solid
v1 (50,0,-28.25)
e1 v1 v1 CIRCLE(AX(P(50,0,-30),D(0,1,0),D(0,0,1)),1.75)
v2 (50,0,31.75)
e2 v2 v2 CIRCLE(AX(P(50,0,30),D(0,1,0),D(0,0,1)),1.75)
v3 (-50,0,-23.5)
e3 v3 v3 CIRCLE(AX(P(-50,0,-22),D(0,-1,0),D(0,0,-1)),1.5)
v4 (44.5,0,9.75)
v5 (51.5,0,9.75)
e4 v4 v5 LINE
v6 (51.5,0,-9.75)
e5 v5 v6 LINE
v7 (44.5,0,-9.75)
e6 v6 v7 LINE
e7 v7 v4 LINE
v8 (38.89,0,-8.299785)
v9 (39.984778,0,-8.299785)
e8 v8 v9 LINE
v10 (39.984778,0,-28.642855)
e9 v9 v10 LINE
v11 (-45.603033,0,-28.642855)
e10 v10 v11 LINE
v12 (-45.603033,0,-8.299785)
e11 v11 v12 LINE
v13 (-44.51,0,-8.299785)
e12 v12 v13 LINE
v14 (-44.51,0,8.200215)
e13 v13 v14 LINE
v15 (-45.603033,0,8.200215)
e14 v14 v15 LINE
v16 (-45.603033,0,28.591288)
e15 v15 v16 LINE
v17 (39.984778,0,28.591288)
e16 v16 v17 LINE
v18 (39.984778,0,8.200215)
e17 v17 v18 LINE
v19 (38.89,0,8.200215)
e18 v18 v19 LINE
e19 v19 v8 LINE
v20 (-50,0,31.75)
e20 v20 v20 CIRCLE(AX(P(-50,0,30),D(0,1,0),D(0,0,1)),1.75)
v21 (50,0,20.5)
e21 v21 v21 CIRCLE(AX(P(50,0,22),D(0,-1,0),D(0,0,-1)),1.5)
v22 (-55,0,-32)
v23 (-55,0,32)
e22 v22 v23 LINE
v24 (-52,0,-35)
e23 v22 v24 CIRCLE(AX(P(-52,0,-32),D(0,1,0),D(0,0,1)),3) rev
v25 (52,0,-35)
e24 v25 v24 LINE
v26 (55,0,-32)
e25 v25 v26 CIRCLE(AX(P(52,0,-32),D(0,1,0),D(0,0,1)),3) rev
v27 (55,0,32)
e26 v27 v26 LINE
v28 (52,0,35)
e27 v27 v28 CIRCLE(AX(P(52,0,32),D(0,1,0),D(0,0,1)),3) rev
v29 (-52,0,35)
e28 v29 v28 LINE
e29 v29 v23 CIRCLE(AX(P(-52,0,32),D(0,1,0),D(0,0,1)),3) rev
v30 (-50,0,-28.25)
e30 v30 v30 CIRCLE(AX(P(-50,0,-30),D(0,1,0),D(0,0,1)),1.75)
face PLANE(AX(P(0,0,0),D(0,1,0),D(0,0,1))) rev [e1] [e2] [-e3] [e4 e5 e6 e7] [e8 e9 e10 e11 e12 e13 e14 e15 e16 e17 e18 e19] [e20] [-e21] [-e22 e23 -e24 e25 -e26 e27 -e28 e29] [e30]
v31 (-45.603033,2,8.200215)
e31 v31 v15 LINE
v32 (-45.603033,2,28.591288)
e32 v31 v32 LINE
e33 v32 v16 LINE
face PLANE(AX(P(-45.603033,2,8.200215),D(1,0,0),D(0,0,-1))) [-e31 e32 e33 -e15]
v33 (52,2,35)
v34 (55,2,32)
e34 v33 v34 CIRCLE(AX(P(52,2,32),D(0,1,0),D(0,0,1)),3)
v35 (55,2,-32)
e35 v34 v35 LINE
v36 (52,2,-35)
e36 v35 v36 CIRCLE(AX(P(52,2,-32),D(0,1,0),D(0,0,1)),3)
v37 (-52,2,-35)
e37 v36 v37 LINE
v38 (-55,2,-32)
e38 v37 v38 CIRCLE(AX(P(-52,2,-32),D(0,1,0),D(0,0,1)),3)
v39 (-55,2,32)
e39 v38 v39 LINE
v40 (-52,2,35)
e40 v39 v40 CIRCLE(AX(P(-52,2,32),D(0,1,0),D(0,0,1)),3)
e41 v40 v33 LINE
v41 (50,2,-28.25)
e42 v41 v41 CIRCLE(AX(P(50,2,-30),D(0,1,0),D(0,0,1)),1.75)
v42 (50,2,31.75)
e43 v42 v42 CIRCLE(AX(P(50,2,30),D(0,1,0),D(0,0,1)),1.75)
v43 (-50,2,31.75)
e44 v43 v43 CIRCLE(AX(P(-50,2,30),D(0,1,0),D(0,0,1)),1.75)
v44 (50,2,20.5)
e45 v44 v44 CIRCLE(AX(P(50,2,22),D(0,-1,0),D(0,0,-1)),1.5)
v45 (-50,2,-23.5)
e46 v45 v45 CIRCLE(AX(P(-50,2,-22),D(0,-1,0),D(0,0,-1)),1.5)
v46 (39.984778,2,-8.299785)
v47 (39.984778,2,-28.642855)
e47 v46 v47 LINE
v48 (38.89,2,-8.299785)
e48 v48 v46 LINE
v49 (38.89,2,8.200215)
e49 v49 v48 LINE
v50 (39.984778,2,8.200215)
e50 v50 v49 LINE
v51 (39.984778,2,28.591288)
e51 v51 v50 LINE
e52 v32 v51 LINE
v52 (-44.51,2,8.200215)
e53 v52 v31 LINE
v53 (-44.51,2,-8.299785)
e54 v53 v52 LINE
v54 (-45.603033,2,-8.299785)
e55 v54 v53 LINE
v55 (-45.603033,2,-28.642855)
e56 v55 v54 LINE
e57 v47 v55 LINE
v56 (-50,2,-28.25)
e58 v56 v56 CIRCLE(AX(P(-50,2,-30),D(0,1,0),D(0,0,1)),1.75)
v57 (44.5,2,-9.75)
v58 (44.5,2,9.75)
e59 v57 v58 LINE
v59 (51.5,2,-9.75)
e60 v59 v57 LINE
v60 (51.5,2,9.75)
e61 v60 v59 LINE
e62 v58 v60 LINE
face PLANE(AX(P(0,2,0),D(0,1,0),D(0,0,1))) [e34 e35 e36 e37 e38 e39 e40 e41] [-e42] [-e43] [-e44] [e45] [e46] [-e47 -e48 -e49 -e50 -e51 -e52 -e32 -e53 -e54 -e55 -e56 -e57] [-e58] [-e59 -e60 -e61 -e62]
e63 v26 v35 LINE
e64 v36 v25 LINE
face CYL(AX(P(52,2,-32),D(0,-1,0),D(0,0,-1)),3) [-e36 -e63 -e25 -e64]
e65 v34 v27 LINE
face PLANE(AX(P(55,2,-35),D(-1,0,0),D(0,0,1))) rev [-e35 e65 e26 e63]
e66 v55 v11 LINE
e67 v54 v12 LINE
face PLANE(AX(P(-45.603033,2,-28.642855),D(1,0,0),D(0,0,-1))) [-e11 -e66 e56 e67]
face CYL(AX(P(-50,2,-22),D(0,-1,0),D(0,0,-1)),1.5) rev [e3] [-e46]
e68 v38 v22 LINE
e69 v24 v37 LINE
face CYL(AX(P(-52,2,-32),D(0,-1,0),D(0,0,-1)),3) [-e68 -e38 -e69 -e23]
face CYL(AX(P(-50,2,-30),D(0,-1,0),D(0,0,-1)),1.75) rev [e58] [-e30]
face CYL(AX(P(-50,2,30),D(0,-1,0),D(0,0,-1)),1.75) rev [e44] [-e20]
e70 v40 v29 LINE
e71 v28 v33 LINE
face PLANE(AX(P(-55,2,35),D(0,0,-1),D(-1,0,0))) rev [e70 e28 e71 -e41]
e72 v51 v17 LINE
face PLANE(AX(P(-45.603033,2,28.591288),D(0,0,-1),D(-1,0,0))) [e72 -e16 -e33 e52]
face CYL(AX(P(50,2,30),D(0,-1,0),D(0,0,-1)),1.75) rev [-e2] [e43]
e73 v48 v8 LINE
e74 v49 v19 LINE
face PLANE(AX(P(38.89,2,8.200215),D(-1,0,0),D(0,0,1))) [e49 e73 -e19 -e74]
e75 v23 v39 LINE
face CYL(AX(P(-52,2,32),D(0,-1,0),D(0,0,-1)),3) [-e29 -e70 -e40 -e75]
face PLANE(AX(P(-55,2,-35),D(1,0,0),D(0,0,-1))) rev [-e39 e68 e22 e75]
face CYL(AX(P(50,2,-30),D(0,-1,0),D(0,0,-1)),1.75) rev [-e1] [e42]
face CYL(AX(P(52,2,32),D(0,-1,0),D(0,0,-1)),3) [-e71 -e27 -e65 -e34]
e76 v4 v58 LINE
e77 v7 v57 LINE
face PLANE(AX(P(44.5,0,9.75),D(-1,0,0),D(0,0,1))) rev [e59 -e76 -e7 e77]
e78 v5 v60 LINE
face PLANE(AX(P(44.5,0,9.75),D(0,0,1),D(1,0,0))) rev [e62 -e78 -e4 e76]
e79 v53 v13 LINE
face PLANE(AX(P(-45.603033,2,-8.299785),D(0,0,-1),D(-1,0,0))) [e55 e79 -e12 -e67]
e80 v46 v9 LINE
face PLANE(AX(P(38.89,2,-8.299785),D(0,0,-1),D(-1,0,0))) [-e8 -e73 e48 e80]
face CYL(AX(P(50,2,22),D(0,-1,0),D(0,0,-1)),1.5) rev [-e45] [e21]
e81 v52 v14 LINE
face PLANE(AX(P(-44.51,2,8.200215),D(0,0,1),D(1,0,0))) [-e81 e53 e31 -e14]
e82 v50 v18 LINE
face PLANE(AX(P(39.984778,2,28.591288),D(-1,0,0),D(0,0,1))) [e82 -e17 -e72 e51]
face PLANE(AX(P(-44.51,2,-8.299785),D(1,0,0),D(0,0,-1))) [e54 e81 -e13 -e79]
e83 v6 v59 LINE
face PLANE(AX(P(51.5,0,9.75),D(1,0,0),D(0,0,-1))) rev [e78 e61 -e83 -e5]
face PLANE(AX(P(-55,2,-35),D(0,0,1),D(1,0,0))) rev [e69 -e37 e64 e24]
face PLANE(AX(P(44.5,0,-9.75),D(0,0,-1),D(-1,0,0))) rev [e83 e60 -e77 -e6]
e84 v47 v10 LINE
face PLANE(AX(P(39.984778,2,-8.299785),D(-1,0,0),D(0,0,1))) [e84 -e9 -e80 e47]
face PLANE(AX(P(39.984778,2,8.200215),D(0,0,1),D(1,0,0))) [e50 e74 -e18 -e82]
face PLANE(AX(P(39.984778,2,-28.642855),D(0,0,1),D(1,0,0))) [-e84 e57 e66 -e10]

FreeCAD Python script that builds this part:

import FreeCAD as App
import Part
import Sketcher
Q = App.Units.Quantity


def edges_at(feature, points):
    """Names of the edges that pass closest to the given points."""
    edges = feature.Shape.Edges
    near = lambda p: min(range(len(edges)), key=lambda i: edges[i].distToShape(Part.Vertex(*p))[0])
    return sorted({f"Edge{near(p) + 1}" for p in points})


def add_polygon(sketch, points):
    """Adds a closed chain of lines whose ends are joined by coincident constraints."""
    first, n = sketch.GeometryCount, len(points)
    for a, b in zip(points, points[1:] + points[:1]):
        sketch.addGeometry(Part.LineSegment(App.Vector(*a, 0), App.Vector(*b, 0)), False)
    for i in range(n):
        sketch.addConstraint(Sketcher.Constraint("Coincident", first + i, 2, first + (i + 1) % n, 1))

doc = App.newDocument("Part")
body = doc.addObject("PartDesign::Body", "Body")

# Sketch on XZ plane
sketch1 = doc.addObject("Sketcher::SketchObject", "Sketch")
body.addObject(sketch1)
sketch1.AttachmentSupport = (doc.XZ_Plane, [""])
sketch1.MapMode = "FlatFace"
add_polygon(sketch1, [(-55, -35), (-55, 35), (55, 35), (55, -35)])  # lines 0-3
sketch1.addGeometry(Part.Circle(App.Vector(-50, 30, 0), App.Vector(0, 0, 1), 1.8), False)  # 4
sketch1.addGeometry(Part.Circle(App.Vector(50, 30, 0), App.Vector(0, 0, 1), 1.8), False)  # 5
add_polygon(sketch1, [(-45.6, -28.6), (40, -28.6), (40, -8.3), (38.9, -8.3), (38.9, 8.2), (40, 8.2), (40, 28.6), (-45.6, 28.6), (-45.6, 8.2), (-44.5, 8.2), (-44.5, -8.3), (-45.6, -8.3)])  # lines 6-17
sketch1.addGeometry(Part.Circle(App.Vector(-50, -30, 0), App.Vector(0, 0, 1), 1.8), False)  # 18
sketch1.addGeometry(Part.Circle(App.Vector(50, -30, 0), App.Vector(0, 0, 1), 1.8), False)  # 19
sketch1.addConstraint(Sketcher.Constraint("Vertical", 0))
sketch1.addConstraint(Sketcher.Constraint("Horizontal", 1))
sketch1.addConstraint(Sketcher.Constraint("Vertical", 2))
sketch1.addConstraint(Sketcher.Constraint("Horizontal", 3))
sketch1.addConstraint(Sketcher.Constraint("Horizontal", 6))
sketch1.addConstraint(Sketcher.Constraint("Vertical", 7))
sketch1.addConstraint(Sketcher.Constraint("Horizontal", 8))
sketch1.addConstraint(Sketcher.Constraint("Vertical", 9))
sketch1.addConstraint(Sketcher.Constraint("Horizontal", 10))
sketch1.addConstraint(Sketcher.Constraint("Vertical", 11))
sketch1.addConstraint(Sketcher.Constraint("Horizontal", 12))
sketch1.addConstraint(Sketcher.Constraint("Vertical", 13))
sketch1.addConstraint(Sketcher.Constraint("Horizontal", 14))
sketch1.addConstraint(Sketcher.Constraint("Vertical", 15))
sketch1.addConstraint(Sketcher.Constraint("Horizontal", 16))
sketch1.addConstraint(Sketcher.Constraint("Vertical", 17))
sketch1.addConstraint(Sketcher.Constraint("Equal", 4, 5))
sketch1.addConstraint(Sketcher.Constraint("Equal", 5, 18))
sketch1.addConstraint(Sketcher.Constraint("Equal", 18, 19))
sketch1.addConstraint(Sketcher.Constraint("Symmetric", 5, 3, 18, 3, -1, 1))
sketch1.addConstraint(Sketcher.Constraint("Symmetric", 4, 3, 19, 3, -1, 1))
sketch1.addConstraint(Sketcher.Constraint("Symmetric", 0, 2, 2, 2, -1, 1))
sketch1.addConstraint(Sketcher.Constraint("Symmetric", 4, 3, 5, 3, -2))
sketch1.addConstraint(Sketcher.Constraint("Horizontal", 10, 2, 13, 2))
sketch1.addConstraint(Sketcher.Constraint("Horizontal", 8, 2, 15, 2))
sketch1.addConstraint(Sketcher.Constraint("Vertical", 7, 2, 10, 2))
sketch1.addConstraint(Sketcher.Constraint("Vertical", 13, 2, 16, 2))
sketch1.addConstraint(Sketcher.Constraint("Diameter", 4, Q("3.5 mm")))
sketch1.addConstraint(Sketcher.Constraint("DistanceX", 1, 1, 1, 2, Q("110 mm")))
sketch1.addConstraint(Sketcher.Constraint("DistanceY", 0, 1, 0, 2, Q("70 mm")))
sketch1.addConstraint(Sketcher.Constraint("DistanceY", 9, 1, 9, 2, Q("16.5 mm")))
sketch1.addConstraint(Sketcher.Constraint("DistanceX", 4, 3, -1, 1, Q("50 mm")))
sketch1.addConstraint(Sketcher.Constraint("DistanceY", -1, 1, 4, 3, Q("30 mm")))
sketch1.addConstraint(Sketcher.Constraint("DistanceX", -1, 1, 8, 2, Q("38.89 mm")))
sketch1.addConstraint(Sketcher.Constraint("DistanceX", 14, 2, -1, 1, Q("44.51 mm")))
sketch1.addConstraint(Sketcher.Constraint("DistanceX", 6, 1, 6, 2, Q("85.587812 mm")))
sketch1.addConstraint(Sketcher.Constraint("DistanceX", 8, 2, 8, 1, Q("1.094778 mm")))
sketch1.addConstraint(Sketcher.Constraint("DistanceY", 7, 1, 7, 2, Q("20.34307 mm")))
sketch1.addConstraint(Sketcher.Constraint("DistanceY", 11, 1, 11, 2, Q("20.391073 mm")))
sketch1.addConstraint(Sketcher.Constraint("DistanceY", 6, 2, -1, 1, Q("28.642855 mm")))
pad1 = doc.addObject("PartDesign::Pad", "Pad")
body.addObject(pad1)
pad1.Profile = sketch1
pad1.Length = 2
pad1.Reversed = True

# Sketch on XZ plane
sketch2 = doc.addObject("Sketcher::SketchObject", "Sketch001")
body.addObject(sketch2)
sketch2.AttachmentSupport = (doc.XZ_Plane, [""])
sketch2.MapMode = "FlatFace"
sketch2.AttachmentOffset = App.Placement(App.Vector(0, 0, -2), App.Rotation())
add_polygon(sketch2, [(44, -10), (44, 10), (52, 10), (52, -10)])  # lines 0-3
sketch2.addConstraint(Sketcher.Constraint("Vertical", 0))
sketch2.addConstraint(Sketcher.Constraint("Horizontal", 1))
sketch2.addConstraint(Sketcher.Constraint("Vertical", 2))
sketch2.addConstraint(Sketcher.Constraint("Horizontal", 3))
sketch2.addConstraint(Sketcher.Constraint("DistanceX", 1, 1, 1, 2, Q("7 mm")))
sketch2.addConstraint(Sketcher.Constraint("DistanceY", 0, 1, 0, 2, Q("19.5 mm")))
sketch2.addConstraint(Sketcher.Constraint("DistanceX", -1, 1, 0, 2, Q("44.5 mm")))
sketch2.addConstraint(Sketcher.Constraint("DistanceY", -1, 1, 0, 2, Q("9.75 mm")))
pocket1 = doc.addObject("PartDesign::Pocket", "Pocket")
body.addObject(pocket1)
pocket1.Profile = sketch2
pocket1.Type = "ThroughAll"
pocket1.Reversed = True
doc.recompute()

fillet = doc.addObject("PartDesign::Fillet", "Fillet")
body.addObject(fillet)
fillet.Base = (pocket1, edges_at(pocket1, [
    (-55, 1, -35),
    (55, 1, -35),
    (55, 1, 35),
    (-55, 1, 35),
]))
fillet.Radius = 3

# Sketch on XZ plane
sketch3 = doc.addObject("Sketcher::SketchObject", "Sketch002")
body.addObject(sketch3)
sketch3.AttachmentSupport = (doc.XZ_Plane, [""])
sketch3.MapMode = "FlatFace"
sketch3.addGeometry(Part.Circle(App.Vector(50, 22, 0), App.Vector(0, 0, 1), 1.5), False)
sketch3.addGeometry(Part.Circle(App.Vector(-50, -22, 0), App.Vector(0, 0, 1), 1.5), False)
sketch3.addConstraint(Sketcher.Constraint("Equal", 0, 1))
sketch3.addConstraint(Sketcher.Constraint("Symmetric", 0, 3, 1, 3, -1, 1))
sketch3.addConstraint(Sketcher.Constraint("Diameter", 0, Q("3 mm")))
sketch3.addConstraint(Sketcher.Constraint("DistanceX", -1, 1, 0, 3, Q("50 mm")))
sketch3.addConstraint(Sketcher.Constraint("DistanceY", -1, 1, 0, 3, Q("22 mm")))
pocket2 = doc.addObject("PartDesign::Pocket", "Pocket001")
body.addObject(pocket2)
pocket2.Profile = sketch3
pocket2.Type = "ThroughAll"

doc.recompute()
